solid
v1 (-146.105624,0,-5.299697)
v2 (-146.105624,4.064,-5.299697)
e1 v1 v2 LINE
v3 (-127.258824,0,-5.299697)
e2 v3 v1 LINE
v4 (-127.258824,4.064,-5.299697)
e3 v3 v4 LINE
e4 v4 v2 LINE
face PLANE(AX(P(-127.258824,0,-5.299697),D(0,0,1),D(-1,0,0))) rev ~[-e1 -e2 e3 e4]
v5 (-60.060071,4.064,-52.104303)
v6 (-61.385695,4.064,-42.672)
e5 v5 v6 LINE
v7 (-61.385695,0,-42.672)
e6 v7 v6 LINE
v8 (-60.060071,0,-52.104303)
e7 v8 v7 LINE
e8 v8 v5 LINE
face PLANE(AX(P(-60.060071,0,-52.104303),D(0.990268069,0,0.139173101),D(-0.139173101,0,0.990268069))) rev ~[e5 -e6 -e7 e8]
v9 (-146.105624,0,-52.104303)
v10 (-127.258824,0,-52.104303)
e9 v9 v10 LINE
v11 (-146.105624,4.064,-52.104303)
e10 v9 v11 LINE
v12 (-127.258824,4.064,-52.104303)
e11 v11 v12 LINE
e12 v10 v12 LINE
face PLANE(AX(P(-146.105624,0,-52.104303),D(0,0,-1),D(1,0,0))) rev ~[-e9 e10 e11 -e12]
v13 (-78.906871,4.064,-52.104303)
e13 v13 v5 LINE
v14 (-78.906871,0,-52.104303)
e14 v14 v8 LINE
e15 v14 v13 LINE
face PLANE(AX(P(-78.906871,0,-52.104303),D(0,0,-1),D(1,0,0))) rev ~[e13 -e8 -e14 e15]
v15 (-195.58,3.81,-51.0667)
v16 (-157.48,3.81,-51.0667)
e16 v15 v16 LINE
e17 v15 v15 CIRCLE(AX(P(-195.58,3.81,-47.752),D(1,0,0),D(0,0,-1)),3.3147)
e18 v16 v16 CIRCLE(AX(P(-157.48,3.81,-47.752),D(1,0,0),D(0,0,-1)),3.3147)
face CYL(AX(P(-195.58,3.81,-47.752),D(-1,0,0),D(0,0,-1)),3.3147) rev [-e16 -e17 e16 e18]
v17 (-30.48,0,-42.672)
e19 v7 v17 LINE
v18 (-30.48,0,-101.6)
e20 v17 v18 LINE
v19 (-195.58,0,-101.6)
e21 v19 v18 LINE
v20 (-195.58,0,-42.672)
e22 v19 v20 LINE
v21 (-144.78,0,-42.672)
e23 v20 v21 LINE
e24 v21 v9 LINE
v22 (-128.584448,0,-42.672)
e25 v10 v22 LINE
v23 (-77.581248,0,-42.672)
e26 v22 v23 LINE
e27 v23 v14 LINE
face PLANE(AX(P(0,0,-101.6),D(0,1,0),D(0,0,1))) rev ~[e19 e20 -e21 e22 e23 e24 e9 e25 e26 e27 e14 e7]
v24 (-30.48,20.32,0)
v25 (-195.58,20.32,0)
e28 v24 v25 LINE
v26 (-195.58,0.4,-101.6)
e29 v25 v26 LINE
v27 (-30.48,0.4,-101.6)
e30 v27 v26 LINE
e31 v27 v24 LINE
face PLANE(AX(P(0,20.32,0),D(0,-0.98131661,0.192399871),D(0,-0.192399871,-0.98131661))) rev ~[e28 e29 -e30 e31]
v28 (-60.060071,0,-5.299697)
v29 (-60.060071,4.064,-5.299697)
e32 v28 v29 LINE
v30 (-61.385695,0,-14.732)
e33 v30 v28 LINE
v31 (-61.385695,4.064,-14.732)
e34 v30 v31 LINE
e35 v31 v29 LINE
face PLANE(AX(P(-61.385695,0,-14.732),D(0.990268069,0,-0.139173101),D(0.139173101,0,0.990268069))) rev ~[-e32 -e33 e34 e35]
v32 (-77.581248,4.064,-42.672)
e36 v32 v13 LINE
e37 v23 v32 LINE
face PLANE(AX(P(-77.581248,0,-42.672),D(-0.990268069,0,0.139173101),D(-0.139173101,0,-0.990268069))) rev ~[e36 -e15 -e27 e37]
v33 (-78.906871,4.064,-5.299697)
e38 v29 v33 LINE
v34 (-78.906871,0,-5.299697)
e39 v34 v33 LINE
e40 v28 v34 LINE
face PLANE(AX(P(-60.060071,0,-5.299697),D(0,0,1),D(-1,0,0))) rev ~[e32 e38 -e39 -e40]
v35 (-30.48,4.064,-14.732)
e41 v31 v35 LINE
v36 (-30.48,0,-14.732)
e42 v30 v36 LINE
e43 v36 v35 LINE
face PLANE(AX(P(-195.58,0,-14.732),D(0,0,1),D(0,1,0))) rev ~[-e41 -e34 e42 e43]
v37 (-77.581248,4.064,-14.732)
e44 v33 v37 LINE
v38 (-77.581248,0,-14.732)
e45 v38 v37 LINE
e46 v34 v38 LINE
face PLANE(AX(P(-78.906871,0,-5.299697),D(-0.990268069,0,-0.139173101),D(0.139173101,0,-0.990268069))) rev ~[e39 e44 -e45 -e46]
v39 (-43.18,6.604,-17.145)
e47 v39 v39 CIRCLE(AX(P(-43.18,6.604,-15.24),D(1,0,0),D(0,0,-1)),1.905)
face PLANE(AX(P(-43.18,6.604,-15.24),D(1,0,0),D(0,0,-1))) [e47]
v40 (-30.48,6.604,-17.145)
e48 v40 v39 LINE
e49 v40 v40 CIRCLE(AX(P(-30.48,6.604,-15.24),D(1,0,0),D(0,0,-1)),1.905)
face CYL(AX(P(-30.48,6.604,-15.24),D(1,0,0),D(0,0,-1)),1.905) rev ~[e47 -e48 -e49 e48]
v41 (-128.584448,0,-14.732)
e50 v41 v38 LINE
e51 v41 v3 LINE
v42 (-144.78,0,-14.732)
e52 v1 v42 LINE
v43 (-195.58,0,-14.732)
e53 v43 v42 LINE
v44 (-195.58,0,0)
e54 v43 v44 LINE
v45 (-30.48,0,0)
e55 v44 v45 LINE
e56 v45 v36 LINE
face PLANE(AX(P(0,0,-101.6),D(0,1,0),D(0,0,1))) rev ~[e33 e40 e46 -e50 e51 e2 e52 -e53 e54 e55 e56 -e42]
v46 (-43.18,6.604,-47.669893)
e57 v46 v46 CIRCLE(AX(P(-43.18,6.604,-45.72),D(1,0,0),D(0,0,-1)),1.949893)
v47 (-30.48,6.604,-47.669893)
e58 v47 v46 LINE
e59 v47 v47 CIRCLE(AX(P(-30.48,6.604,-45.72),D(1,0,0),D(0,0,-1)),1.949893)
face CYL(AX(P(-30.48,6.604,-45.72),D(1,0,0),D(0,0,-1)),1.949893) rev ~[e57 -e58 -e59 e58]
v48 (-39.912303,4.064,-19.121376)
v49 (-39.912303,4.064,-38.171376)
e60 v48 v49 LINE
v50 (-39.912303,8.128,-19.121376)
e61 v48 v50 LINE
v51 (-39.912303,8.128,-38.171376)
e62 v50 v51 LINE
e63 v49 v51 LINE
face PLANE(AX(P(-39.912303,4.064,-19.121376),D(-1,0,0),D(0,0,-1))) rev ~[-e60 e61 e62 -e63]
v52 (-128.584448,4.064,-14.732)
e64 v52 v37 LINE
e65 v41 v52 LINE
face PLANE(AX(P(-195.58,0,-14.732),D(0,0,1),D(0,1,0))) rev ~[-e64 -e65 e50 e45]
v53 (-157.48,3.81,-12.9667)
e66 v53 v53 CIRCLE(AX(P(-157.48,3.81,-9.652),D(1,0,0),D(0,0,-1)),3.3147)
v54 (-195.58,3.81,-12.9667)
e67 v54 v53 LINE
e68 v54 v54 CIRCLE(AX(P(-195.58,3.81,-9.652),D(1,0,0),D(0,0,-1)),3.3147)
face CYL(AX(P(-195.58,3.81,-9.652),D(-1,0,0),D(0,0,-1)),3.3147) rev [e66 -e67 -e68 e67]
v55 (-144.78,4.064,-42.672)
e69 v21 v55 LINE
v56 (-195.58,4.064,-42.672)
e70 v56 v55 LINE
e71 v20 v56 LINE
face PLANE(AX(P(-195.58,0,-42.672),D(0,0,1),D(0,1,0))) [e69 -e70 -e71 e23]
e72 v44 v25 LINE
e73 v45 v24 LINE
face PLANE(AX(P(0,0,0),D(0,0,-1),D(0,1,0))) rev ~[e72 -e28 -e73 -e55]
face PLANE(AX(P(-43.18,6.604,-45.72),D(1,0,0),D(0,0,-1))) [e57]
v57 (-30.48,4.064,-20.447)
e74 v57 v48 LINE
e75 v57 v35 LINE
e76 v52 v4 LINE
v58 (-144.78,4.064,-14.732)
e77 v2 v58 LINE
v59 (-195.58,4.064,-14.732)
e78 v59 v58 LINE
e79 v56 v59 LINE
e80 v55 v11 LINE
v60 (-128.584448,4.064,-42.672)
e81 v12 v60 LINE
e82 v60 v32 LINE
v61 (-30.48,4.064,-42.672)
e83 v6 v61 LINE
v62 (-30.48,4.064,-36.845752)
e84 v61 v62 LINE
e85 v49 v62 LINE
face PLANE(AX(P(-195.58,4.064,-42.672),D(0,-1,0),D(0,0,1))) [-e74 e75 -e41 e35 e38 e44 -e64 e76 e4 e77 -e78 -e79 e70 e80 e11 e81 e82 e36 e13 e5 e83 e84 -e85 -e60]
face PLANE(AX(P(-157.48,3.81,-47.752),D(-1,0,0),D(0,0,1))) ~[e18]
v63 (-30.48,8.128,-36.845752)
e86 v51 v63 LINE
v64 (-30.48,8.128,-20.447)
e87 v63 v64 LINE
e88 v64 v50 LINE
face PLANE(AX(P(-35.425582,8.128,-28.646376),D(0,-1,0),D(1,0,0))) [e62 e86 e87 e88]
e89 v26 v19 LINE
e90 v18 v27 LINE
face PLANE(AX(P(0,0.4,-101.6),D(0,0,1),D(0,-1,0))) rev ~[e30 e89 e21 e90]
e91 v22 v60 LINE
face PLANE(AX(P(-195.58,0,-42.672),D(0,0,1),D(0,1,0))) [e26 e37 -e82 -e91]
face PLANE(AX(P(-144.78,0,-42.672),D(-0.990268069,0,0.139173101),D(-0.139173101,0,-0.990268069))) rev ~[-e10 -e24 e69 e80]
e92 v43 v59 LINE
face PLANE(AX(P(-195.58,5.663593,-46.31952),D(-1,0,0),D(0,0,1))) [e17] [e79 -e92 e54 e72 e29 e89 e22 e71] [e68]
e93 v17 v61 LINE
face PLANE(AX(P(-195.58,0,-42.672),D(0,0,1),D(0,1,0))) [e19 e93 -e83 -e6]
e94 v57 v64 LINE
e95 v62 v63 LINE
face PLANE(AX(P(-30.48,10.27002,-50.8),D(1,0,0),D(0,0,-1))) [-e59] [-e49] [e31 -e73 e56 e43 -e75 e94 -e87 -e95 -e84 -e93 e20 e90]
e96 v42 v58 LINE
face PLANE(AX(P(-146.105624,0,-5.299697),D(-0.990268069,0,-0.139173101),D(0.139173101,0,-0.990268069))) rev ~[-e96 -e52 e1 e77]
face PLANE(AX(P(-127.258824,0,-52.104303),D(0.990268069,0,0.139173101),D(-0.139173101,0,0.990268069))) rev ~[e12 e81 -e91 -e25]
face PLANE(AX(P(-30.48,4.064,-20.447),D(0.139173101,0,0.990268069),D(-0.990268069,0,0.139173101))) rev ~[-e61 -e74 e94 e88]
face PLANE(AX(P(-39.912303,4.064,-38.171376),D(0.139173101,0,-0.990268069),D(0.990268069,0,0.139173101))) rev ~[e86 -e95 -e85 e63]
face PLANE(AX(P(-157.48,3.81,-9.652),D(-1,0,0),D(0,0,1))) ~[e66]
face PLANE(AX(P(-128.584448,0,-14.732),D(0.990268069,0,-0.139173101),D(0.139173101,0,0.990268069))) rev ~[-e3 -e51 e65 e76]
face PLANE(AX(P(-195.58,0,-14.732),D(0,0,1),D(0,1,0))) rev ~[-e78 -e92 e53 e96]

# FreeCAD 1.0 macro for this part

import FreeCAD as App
import Part
import Sketcher
Q = App.Units.Quantity


def add_polygon(sketch, points):
    """Adds a closed chain of lines whose ends are joined by coincident constraints."""
    first, n = sketch.GeometryCount, len(points)
    for a, b in zip(points, points[1:] + points[:1]):
        sketch.addGeometry(Part.LineSegment(App.Vector(*a, 0), App.Vector(*b, 0)), False)
    for i in range(n):
        sketch.addConstraint(Sketcher.Constraint("Coincident", first + i, 2, first + (i + 1) % n, 1))

doc = App.newDocument("Part")
params = doc.addObject("Spreadsheet::Sheet", "Params")
for row, (alias, value) in enumerate([
    ("sketch1_height", "4 in"),
    ("sketch1_width", "0.8 in"),
    ("pad1_length", "15.4 in"),
    ("sketch2_diameter", "0.261 in"),
    ("pocket1_length", "1.5 in"),
    ("sketch3_height", "1.1 in"),
    ("sketch3_width", "0.16 in"),
    ("sketch4_width", "0.742 in"),
    ("sketch4_length", "0.375 in"),
    ("pocket3_length", "0.16 in"),
    ("sketch5_height", "4 in"),
    ("pocket4_length", "8.9 in"),
    ("sketch6_height", "0.75 in"),
    ("sketch6_length", "0.375 in"),
    ("pocket5_length", "0.16 in"),
    ("sketch7_diameter", "0.15 in"),
    ("pocket6_length", "0.5 in"),
], start=1):
    params.set(f"A{row}", alias)
    params.set(f"B{row}", "=" + value)
    params.setAlias(f"B{row}", alias)

body = doc.addObject("PartDesign::Body", "Body")

# Sketch on YZ plane
sketch1 = body.newObject("Sketcher::SketchObject", "Sketch")
sketch1.AttachmentSupport = (doc.getObject("YZ_Plane"), [""])
sketch1.MapMode = "FlatFace"
add_polygon(sketch1, [(20.32, 0), (0, 0), (0, -101.6), (0.4, -101.6)])  # lines 0-3
sketch1.addConstraint(Sketcher.Constraint("Horizontal", 0))
sketch1.addConstraint(Sketcher.Constraint("Vertical", 1))
sketch1.addConstraint(Sketcher.Constraint("Horizontal", 2))
sketch1.addConstraint(Sketcher.Constraint("Coincident", 0, 2, -1, 1))
sketch1.addConstraint(Sketcher.Constraint("DistanceY", 1, 2, 1, 1, Q("4 in")))
sketch1.addConstraint(Sketcher.Constraint("DistanceX", 0, 2, 0, 1, Q("0.8 in")))
sketch1.addConstraint(Sketcher.Constraint("DistanceX", 2, 1, 2, 2, Q("0.4 mm")))
sketch1.setExpression("Constraints[8]", "Params.sketch1_height")
sketch1.setExpression("Constraints[9]", "Params.sketch1_width")
pad1 = body.newObject("PartDesign::Pad", "Pad")
pad1.Profile = sketch1
pad1.setExpression("Length", "Params.pad1_length")
pad1.Midplane = True

# Sketch on YZ plane
sketch2 = body.newObject("Sketcher::SketchObject", "Sketch001")
sketch2.AttachmentSupport = (doc.getObject("YZ_Plane"), [""])
sketch2.MapMode = "FlatFace"
sketch2.AttachmentOffset = App.Placement(App.Vector(0, 0, 7.7 * 25.4), App.Rotation())
sketch2.addGeometry(Part.Circle(App.Vector(3.8, -9.7, 0), App.Vector(0, 0, 1), 3.3), False)
sketch2.addGeometry(Part.Circle(App.Vector(3.8, -47.8, 0), App.Vector(0, 0, 1), 3.3), False)
sketch2.addConstraint(Sketcher.Constraint("Equal", 0, 1))
sketch2.addConstraint(Sketcher.Constraint("Vertical", 0, 3, 1, 3))
sketch2.addConstraint(Sketcher.Constraint("Diameter", 0, Q("0.261 in")))
sketch2.addConstraint(Sketcher.Constraint("DistanceY", 1, 3, 0, 3, Q("1.5 in")))
sketch2.addConstraint(Sketcher.Constraint("DistanceX", -1, 1, 0, 3, Q("0.15 in")))
sketch2.addConstraint(Sketcher.Constraint("DistanceY", 0, 3, -1, 1, Q("0.38 in")))
sketch2.setExpression("Constraints[2]", "Params.sketch2_diameter")
pocket1 = body.newObject("PartDesign::Pocket", "Pocket")
pocket1.Profile = sketch2
pocket1.setExpression("Length", "Params.pocket1_length")
doc.recompute()

mirrored = body.newObject("PartDesign::Mirrored", "Mirrored")
mirrored.Originals = [pocket1]
mirrored.MirrorPlane = (doc.getObject("YZ_Plane"), [""])
body.Tip = mirrored

# Sketch on YZ plane
sketch3 = body.newObject("Sketcher::SketchObject", "Sketch002")
sketch3.AttachmentSupport = (doc.getObject("YZ_Plane"), [""])
sketch3.MapMode = "FlatFace"
sketch3.AttachmentOffset = App.Placement(App.Vector(0, 0, -7.7 * 25.4), App.Rotation())
add_polygon(sketch3, [(4.1, -42.7), (0, -42.7), (0, -14.7), (4.1, -14.7)])  # lines 0-3
sketch3.addConstraint(Sketcher.Constraint("Horizontal", 0))
sketch3.addConstraint(Sketcher.Constraint("Vertical", 1))
sketch3.addConstraint(Sketcher.Constraint("Horizontal", 2))
sketch3.addConstraint(Sketcher.Constraint("Vertical", 3))
sketch3.addConstraint(Sketcher.Constraint("PointOnObject", 0, 2, -2))
sketch3.addConstraint(Sketcher.Constraint("DistanceY", 1, 1, 1, 2, Q("1.1 in")))
sketch3.addConstraint(Sketcher.Constraint("DistanceX", 0, 2, 0, 1, Q("0.16 in")))
sketch3.addConstraint(Sketcher.Constraint("DistanceY", 0, 2, -1, 1, Q("1.68 in")))
sketch3.setExpression("Constraints[9]", "Params.sketch3_height")
sketch3.setExpression("Constraints[10]", "Params.sketch3_width")
pocket2 = body.newObject("PartDesign::Pocket", "Pocket001")
pocket2.Profile = sketch3
pocket2.Type = "ThroughAll"
pocket2.Reversed = True

# Sketch on XZ plane
sketch4 = body.newObject("Sketcher::SketchObject", "Sketch003")
sketch4.AttachmentSupport = (doc.getObject("XZ_Plane"), [""])
sketch4.MapMode = "FlatFace"
add_polygon(sketch4, [(-145, -43), (-146, -52), (-127, -52), (-129, -43)])  # lines 0-3
add_polygon(sketch4, [(-78, -43), (-79, -52), (-60, -52), (-61, -43)])  # lines 4-7
add_polygon(sketch4, [(-10, -43), (-12, -52), (7, -52), (6, -43)])  # lines 8-11
add_polygon(sketch4, [(57, -43), (55, -52), (74, -52), (73, -43)])  # lines 12-15
add_polygon(sketch4, [(124, -43), (123, -52), (142, -52), (140, -43)])  # lines 16-19
add_polygon(sketch4, [(124, -15), (140, -15), (142, -5), (123, -5)])  # lines 20-23
add_polygon(sketch4, [(57, -15), (73, -15), (74, -5), (55, -5)])  # lines 24-27
add_polygon(sketch4, [(-10, -15), (6, -15), (7, -5), (-12, -5)])  # lines 28-31
add_polygon(sketch4, [(-78, -15), (-61, -15), (-60, -5), (-79, -5)])  # lines 32-35
add_polygon(sketch4, [(-145, -15), (-129, -15), (-127, -5), (-146, -5)])  # lines 36-39
sketch4.addConstraint(Sketcher.Constraint("Horizontal", 1))
sketch4.addConstraint(Sketcher.Constraint("Horizontal", 3))
sketch4.addConstraint(Sketcher.Constraint("Horizontal", 5))
sketch4.addConstraint(Sketcher.Constraint("Horizontal", 7))
sketch4.addConstraint(Sketcher.Constraint("Horizontal", 9))
sketch4.addConstraint(Sketcher.Constraint("Horizontal", 11))
sketch4.addConstraint(Sketcher.Constraint("Horizontal", 13))
sketch4.addConstraint(Sketcher.Constraint("Horizontal", 15))
sketch4.addConstraint(Sketcher.Constraint("Horizontal", 17))
sketch4.addConstraint(Sketcher.Constraint("Horizontal", 19))
sketch4.addConstraint(Sketcher.Constraint("Horizontal", 20))
sketch4.addConstraint(Sketcher.Constraint("Horizontal", 22))
sketch4.addConstraint(Sketcher.Constraint("Horizontal", 24))
sketch4.addConstraint(Sketcher.Constraint("Horizontal", 26))
sketch4.addConstraint(Sketcher.Constraint("Horizontal", 28))
sketch4.addConstraint(Sketcher.Constraint("Horizontal", 30))
sketch4.addConstraint(Sketcher.Constraint("Horizontal", 32))
sketch4.addConstraint(Sketcher.Constraint("Horizontal", 34))
sketch4.addConstraint(Sketcher.Constraint("Horizontal", 36))
sketch4.addConstraint(Sketcher.Constraint("Horizontal", 38))
sketch4.addConstraint(Sketcher.Constraint("Parallel", 0, 4))
sketch4.addConstraint(Sketcher.Constraint("Parallel", 2, 6))
sketch4.addConstraint(Sketcher.Constraint("Parallel", 4, 8))
sketch4.addConstraint(Sketcher.Constraint("Parallel", 6, 10))
sketch4.addConstraint(Sketcher.Constraint("Parallel", 8, 12))
sketch4.addConstraint(Sketcher.Constraint("Parallel", 10, 14))
sketch4.addConstraint(Sketcher.Constraint("Parallel", 12, 16))
sketch4.addConstraint(Sketcher.Constraint("Parallel", 14, 18))
sketch4.addConstraint(Sketcher.Constraint("Parallel", 16, 21))
sketch4.addConstraint(Sketcher.Constraint("Parallel", 18, 23))
sketch4.addConstraint(Sketcher.Constraint("Parallel", 21, 25))
sketch4.addConstraint(Sketcher.Constraint("Parallel", 23, 27))
sketch4.addConstraint(Sketcher.Constraint("Parallel", 25, 29))
sketch4.addConstraint(Sketcher.Constraint("Parallel", 27, 31))
sketch4.addConstraint(Sketcher.Constraint("Parallel", 29, 33))
sketch4.addConstraint(Sketcher.Constraint("Parallel", 31, 35))
sketch4.addConstraint(Sketcher.Constraint("Parallel", 33, 37))
sketch4.addConstraint(Sketcher.Constraint("Parallel", 35, 39))
sketch4.addConstraint(Sketcher.Constraint("Horizontal", 1, 2, 4, 2))
sketch4.addConstraint(Sketcher.Constraint("Horizontal", 3, 2, 6, 2))
sketch4.addConstraint(Sketcher.Constraint("Horizontal", 5, 2, 8, 2))
sketch4.addConstraint(Sketcher.Constraint("Horizontal", 7, 2, 10, 2))
sketch4.addConstraint(Sketcher.Constraint("Horizontal", 9, 2, 12, 2))
sketch4.addConstraint(Sketcher.Constraint("Horizontal", 11, 2, 14, 2))
sketch4.addConstraint(Sketcher.Constraint("Horizontal", 13, 2, 16, 2))
sketch4.addConstraint(Sketcher.Constraint("Horizontal", 15, 2, 18, 2))
sketch4.addConstraint(Sketcher.Constraint("Horizontal", 23, 2, 24, 2))
sketch4.addConstraint(Sketcher.Constraint("Horizontal", 22, 2, 25, 2))
sketch4.addConstraint(Sketcher.Constraint("Horizontal", 27, 2, 28, 2))
sketch4.addConstraint(Sketcher.Constraint("Horizontal", 26, 2, 29, 2))
sketch4.addConstraint(Sketcher.Constraint("Horizontal", 31, 2, 32, 2))
sketch4.addConstraint(Sketcher.Constraint("Horizontal", 30, 2, 33, 2))
sketch4.addConstraint(Sketcher.Constraint("Horizontal", 35, 2, 36, 2))
sketch4.addConstraint(Sketcher.Constraint("Horizontal", 34, 2, 37, 2))
sketch4.addConstraint(Sketcher.Constraint("Vertical", 18, 2, 20, 2))
sketch4.addConstraint(Sketcher.Constraint("Vertical", 17, 2, 21, 2))
sketch4.addConstraint(Sketcher.Constraint("Vertical", 16, 2, 22, 2))
sketch4.addConstraint(Sketcher.Constraint("Vertical", 19, 2, 23, 2))
sketch4.addConstraint(Sketcher.Constraint("Vertical", 14, 2, 24, 2))
sketch4.addConstraint(Sketcher.Constraint("Vertical", 12, 2, 26, 2))
sketch4.addConstraint(Sketcher.Constraint("Vertical", 10, 2, 28, 2))
sketch4.addConstraint(Sketcher.Constraint("Vertical", 8, 2, 30, 2))
sketch4.addConstraint(Sketcher.Constraint("Vertical", 6, 2, 32, 2))
sketch4.addConstraint(Sketcher.Constraint("Vertical", 4, 2, 34, 2))
sketch4.addConstraint(Sketcher.Constraint("Vertical", 2, 2, 36, 2))
sketch4.addConstraint(Sketcher.Constraint("Vertical", 0, 2, 38, 2))
sketch4.addConstraint(Sketcher.Constraint("Equal", 1, 5))
sketch4.addConstraint(Sketcher.Constraint("Equal", 5, 9))
sketch4.addConstraint(Sketcher.Constraint("Equal", 9, 13))
sketch4.addConstraint(Sketcher.Constraint("Equal", 13, 17))
sketch4.addConstraint(Sketcher.Constraint("Angle", 0, Q("-98 deg")))
sketch4.addConstraint(Sketcher.Constraint("DistanceX", 3, 2, -1, 1, Q("5.7 in")))
sketch4.addConstraint(Sketcher.Constraint("DistanceY", 18, 2, 20, 2, Q("1.1 in")))
sketch4.addConstraint(Sketcher.Constraint("DistanceX", 1, 1, 1, 2, Q("0.742 in")))
sketch4.addConstraint(Sketcher.Constraint("DistanceY", 2, 2, -1, 1, Q("1.68 in")))
sketch4.addConstraint(Sketcher.Constraint("Distance", 0, Q("0.375 in")))
sketch4.addConstraint(Sketcher.Constraint("DistanceX", 2, 2, 7, 2, Q("2.008 in")))
sketch4.addConstraint(Sketcher.Constraint("DistanceX", 6, 2, 11, 2, Q("2.008 in")))
sketch4.addConstraint(Sketcher.Constraint("DistanceX", 10, 2, 15, 2, Q("2.008 in")))
sketch4.addConstraint(Sketcher.Constraint("DistanceX", 14, 2, 19, 2, Q("2.008 in")))
sketch4.setExpression("Constraints[113]", "Params.sketch4_width")
sketch4.setExpression("Constraints[115]", "Params.sketch4_length")
pocket3 = body.newObject("PartDesign::Pocket", "Pocket002")
pocket3.Profile = sketch4
pocket3.setExpression("Length", "Params.pocket3_length")

# Sketch on YZ plane
sketch5 = body.newObject("Sketcher::SketchObject", "Sketch004")
sketch5.AttachmentSupport = (doc.getObject("YZ_Plane"), [""])
sketch5.MapMode = "FlatFace"
sketch5.AttachmentOffset = App.Placement(App.Vector(0, 0, 7.7 * 25.4), App.Rotation())
add_polygon(sketch5, [(21, 0), (0, 0), (0, -102), (21, -102)])  # lines 0-3
sketch5.addConstraint(Sketcher.Constraint("Horizontal", 0))
sketch5.addConstraint(Sketcher.Constraint("Vertical", 1))
sketch5.addConstraint(Sketcher.Constraint("Horizontal", 2))
sketch5.addConstraint(Sketcher.Constraint("Vertical", 3))
sketch5.addConstraint(Sketcher.Constraint("Coincident", 0, 2, -1, 1))
sketch5.addConstraint(Sketcher.Constraint("DistanceY", 1, 2, 1, 1, Q("4 in")))
sketch5.addConstraint(Sketcher.Constraint("DistanceX", 0, 2, 0, 1, Q("20.540041 mm")))
sketch5.setExpression("Constraints[9]", "Params.sketch5_height")
pocket4 = body.newObject("PartDesign::Pocket", "Pocket003")
pocket4.Profile = sketch5
pocket4.setExpression("Length", "Params.pocket4_length")

# Sketch on XZ plane
sketch6 = body.newObject("Sketcher::SketchObject", "Sketch005")
sketch6.AttachmentSupport = (doc.getObject("XZ_Plane"), [""])
sketch6.MapMode = "FlatFace"
sketch6.AttachmentOffset = App.Placement(App.Vector(0, 0, -0.16 * 25.4), App.Rotation())
add_polygon(sketch6, [(-30, -20), (-40, -19), (-40, -38), (-30, -37)])  # lines 0-3
sketch6.addConstraint(Sketcher.Constraint("Vertical", 1))
sketch6.addConstraint(Sketcher.Constraint("Vertical", 3))
sketch6.addConstraint(Sketcher.Constraint("Equal", 0, 2))
sketch6.addConstraint(Sketcher.Constraint("Angle", 0, Q("172 deg")))
sketch6.addConstraint(Sketcher.Constraint("DistanceY", 1, 2, 1, 1, Q("0.75 in")))
sketch6.addConstraint(Sketcher.Constraint("DistanceX", 2, 2, -1, 1, Q("1.2 in")))
sketch6.addConstraint(Sketcher.Constraint("Distance", 0, Q("0.375 in")))
sketch6.addConstraint(Sketcher.Constraint("DistanceY", 3, 2, -1, 1, Q("0.805 in")))
sketch6.setExpression("Constraints[8]", "Params.sketch6_height")
sketch6.setExpression("Constraints[10]", "Params.sketch6_length")
pocket5 = body.newObject("PartDesign::Pocket", "Pocket004")
pocket5.Profile = sketch6
pocket5.setExpression("Length", "Params.pocket5_length")

# Sketch on YZ plane
sketch7 = body.newObject("Sketcher::SketchObject", "Sketch006")
sketch7.AttachmentSupport = (doc.getObject("YZ_Plane"), [""])
sketch7.MapMode = "FlatFace"
sketch7.AttachmentOffset = App.Placement(App.Vector(0, 0, -1.2 * 25.4), App.Rotation())
sketch7.addGeometry(Part.Circle(App.Vector(6.6, -15.2, 0), App.Vector(0, 0, 1), 1.9), False)
sketch7.addGeometry(Part.Circle(App.Vector(6.6, -45.7, 0), App.Vector(0, 0, 1), 1.9), False)
sketch7.addConstraint(Sketcher.Constraint("Vertical", 0, 3, 1, 3))
sketch7.addConstraint(Sketcher.Constraint("Diameter", 0, Q("0.15 in")))
sketch7.addConstraint(Sketcher.Constraint("DistanceY", 0, 3, -1, 1, Q("0.6 in")))
sketch7.addConstraint(Sketcher.Constraint("DistanceY", 1, 3, -1, 1, Q("1.8 in")))
sketch7.addConstraint(Sketcher.Constraint("DistanceX", -1, 1, 0, 3, Q("0.26 in")))
sketch7.addConstraint(Sketcher.Constraint("Diameter", 1, Q("3.899787 mm")))
sketch7.setExpression("Constraints[1]", "Params.sketch7_diameter")
pocket6 = body.newObject("PartDesign::Pocket", "Pocket005")
pocket6.Profile = sketch7
pocket6.setExpression("Length", "Params.pocket6_length")

doc.recompute()
